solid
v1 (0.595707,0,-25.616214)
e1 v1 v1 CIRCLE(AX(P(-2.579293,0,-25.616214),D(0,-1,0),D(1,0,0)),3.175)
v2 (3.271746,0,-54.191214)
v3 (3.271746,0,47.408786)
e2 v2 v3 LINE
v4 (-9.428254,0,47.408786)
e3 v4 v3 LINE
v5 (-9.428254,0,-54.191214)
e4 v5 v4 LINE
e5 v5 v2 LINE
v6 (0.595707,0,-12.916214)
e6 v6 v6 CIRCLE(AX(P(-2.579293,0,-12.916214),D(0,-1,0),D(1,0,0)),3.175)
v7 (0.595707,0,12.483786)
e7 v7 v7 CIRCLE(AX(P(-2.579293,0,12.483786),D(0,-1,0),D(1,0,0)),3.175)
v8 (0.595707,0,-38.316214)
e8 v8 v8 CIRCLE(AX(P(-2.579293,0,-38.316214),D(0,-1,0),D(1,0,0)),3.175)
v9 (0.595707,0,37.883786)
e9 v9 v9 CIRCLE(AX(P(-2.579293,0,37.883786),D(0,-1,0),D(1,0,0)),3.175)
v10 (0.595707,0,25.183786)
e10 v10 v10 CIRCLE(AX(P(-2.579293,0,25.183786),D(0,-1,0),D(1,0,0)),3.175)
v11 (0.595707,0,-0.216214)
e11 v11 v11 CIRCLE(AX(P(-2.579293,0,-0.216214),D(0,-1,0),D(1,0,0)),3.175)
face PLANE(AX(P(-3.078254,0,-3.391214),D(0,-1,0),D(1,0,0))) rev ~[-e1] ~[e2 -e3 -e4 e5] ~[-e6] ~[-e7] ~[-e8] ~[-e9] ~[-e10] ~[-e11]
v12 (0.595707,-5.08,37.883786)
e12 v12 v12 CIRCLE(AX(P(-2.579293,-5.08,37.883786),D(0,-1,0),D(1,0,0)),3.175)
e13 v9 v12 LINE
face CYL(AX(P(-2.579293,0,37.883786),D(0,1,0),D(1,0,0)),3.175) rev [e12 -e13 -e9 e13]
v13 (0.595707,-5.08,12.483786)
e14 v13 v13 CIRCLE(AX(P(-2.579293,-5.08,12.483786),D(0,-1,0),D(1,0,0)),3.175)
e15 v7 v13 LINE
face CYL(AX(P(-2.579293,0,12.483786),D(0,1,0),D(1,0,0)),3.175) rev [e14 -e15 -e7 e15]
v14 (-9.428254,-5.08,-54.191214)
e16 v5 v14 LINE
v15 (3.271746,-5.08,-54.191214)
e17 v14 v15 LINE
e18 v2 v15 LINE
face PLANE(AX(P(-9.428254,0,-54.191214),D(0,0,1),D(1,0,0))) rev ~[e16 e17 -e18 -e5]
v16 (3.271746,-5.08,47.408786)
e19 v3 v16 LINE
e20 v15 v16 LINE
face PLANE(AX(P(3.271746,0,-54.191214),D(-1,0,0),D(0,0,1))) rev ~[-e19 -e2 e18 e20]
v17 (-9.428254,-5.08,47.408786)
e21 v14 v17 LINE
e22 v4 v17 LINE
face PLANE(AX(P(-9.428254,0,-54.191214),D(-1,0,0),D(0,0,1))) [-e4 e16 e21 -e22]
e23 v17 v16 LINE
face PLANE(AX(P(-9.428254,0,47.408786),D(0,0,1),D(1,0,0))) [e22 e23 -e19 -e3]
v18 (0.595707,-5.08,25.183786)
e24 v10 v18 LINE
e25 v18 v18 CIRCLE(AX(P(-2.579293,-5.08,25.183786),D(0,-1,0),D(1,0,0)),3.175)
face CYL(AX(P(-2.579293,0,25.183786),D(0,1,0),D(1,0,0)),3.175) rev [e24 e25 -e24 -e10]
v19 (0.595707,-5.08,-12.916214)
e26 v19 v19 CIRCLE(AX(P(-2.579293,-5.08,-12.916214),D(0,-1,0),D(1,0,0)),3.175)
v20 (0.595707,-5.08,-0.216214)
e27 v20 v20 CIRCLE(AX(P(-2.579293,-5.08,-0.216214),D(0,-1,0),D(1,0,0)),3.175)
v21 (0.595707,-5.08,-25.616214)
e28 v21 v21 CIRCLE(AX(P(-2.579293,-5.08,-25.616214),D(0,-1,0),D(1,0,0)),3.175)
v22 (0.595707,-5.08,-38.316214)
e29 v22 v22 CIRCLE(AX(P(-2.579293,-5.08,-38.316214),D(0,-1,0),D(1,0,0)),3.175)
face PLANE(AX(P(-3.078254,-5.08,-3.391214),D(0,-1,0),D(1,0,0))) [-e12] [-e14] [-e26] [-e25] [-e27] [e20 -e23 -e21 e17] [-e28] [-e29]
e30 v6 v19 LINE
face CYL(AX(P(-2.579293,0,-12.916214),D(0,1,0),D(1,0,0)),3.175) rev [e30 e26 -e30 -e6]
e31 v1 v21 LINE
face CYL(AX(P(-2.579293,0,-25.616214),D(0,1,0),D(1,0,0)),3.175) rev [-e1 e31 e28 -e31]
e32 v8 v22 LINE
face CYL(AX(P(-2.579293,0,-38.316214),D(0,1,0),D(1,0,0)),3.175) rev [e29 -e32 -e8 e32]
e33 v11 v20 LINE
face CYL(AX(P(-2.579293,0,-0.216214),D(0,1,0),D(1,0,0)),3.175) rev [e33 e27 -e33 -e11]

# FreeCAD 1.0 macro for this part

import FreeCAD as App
import Part
import Sketcher
Q = App.Units.Quantity


def add_polygon(sketch, points):
    """Adds a closed chain of lines whose ends are joined by coincident constraints."""
    first, n = sketch.GeometryCount, len(points)
    for a, b in zip(points, points[1:] + points[:1]):
        sketch.addGeometry(Part.LineSegment(App.Vector(*a, 0), App.Vector(*b, 0)), False)
    for i in range(n):
        sketch.addConstraint(Sketcher.Constraint("Coincident", first + i, 2, first + (i + 1) % n, 1))

doc = App.newDocument("Part")
body = doc.addObject("PartDesign::Body", "Body")

sketch1 = doc.addObject("Sketcher::SketchObject", "Sketch")
body.addObject(sketch1)
sketch1.AttachmentSupport = (doc.XZ_Plane, [""])
sketch1.MapMode = "FlatFace"
add_polygon(sketch1, [(-9.4, 47.4), (-9.4, -54.2), (3.3, -54.2), (3.3, 47.4)])
sketch1.addGeometry(Part.Circle(App.Vector(-2.6, -38.3, 0), App.Vector(0, 0, 1), 3.2), False)
sketch1.addGeometry(Part.Circle(App.Vector(-2.6, -25.6, 0), App.Vector(0, 0, 1), 3.2), False)
sketch1.addGeometry(Part.Circle(App.Vector(-2.6, -12.9, 0), App.Vector(0, 0, 1), 3.2), False)
sketch1.addGeometry(Part.Circle(App.Vector(-2.6, -0.2, 0), App.Vector(0, 0, 1), 3.2), False)
sketch1.addGeometry(Part.Circle(App.Vector(-2.6, 12.5, 0), App.Vector(0, 0, 1), 3.2), False)
sketch1.addGeometry(Part.Circle(App.Vector(-2.6, 25.2, 0), App.Vector(0, 0, 1), 3.2), False)
sketch1.addGeometry(Part.Circle(App.Vector(-2.6, 37.9, 0), App.Vector(0, 0, 1), 3.2), False)
sketch1.addConstraint([
    Sketcher.Constraint("Vertical", 0),
    Sketcher.Constraint("Horizontal", 1),
    Sketcher.Constraint("Vertical", 2),
    Sketcher.Constraint("Horizontal", 3),
    Sketcher.Constraint("Equal", 4, 5),
    Sketcher.Constraint("Equal", 5, 6),
    Sketcher.Constraint("Equal", 6, 7),
    Sketcher.Constraint("Equal", 7, 8),
    Sketcher.Constraint("Equal", 8, 9),
    Sketcher.Constraint("Equal", 9, 10),
    Sketcher.Constraint("Vertical", 4, 3, 5, 3),
    Sketcher.Constraint("Vertical", 5, 3, 6, 3),
    Sketcher.Constraint("Vertical", 6, 3, 7, 3),
    Sketcher.Constraint("Vertical", 7, 3, 8, 3),
    Sketcher.Constraint("Vertical", 8, 3, 9, 3),
    Sketcher.Constraint("Vertical", 9, 3, 10, 3),
    Sketcher.Constraint("Diameter", 4, Q("0.25 in")),
    Sketcher.Constraint("DistanceY", 0, 2, 0, 1, Q("4 in")),
    Sketcher.Constraint("DistanceX", 1, 1, 1, 2, Q("0.5 in")),
    Sketcher.Constraint("DistanceY", 4, 3, 6, 3, Q("1 in")),
    Sketcher.Constraint("DistanceY", 5, 3, 7, 3, Q("1 in")),
    Sketcher.Constraint("DistanceY", 6, 3, 8, 3, Q("1 in")),
    Sketcher.Constraint("DistanceY", 7, 3, 9, 3, Q("1 in")),
    Sketcher.Constraint("DistanceY", 8, 3, 10, 3, Q("1 in")),
    Sketcher.Constraint("DistanceY", 4, 3, 5, 3, Q("0.5 in")),
    Sketcher.Constraint("DistanceY", 0, 2, 4, 3, Q("0.625 in")),
    Sketcher.Constraint("DistanceX", 0, 2, 4, 3, Q("6.848961 mm")),
    Sketcher.Constraint("DistanceX", 4, 3, -1, 1, Q("2.579293 mm")),
    Sketcher.Constraint("DistanceY", 4, 3, -1, 1, Q("38.316214 mm")),
])
pad1 = doc.addObject("PartDesign::Pad", "Pad")
body.addObject(pad1)
pad1.Profile = sketch1
pad1.Length = Q("0.2 in")

doc.recompute()
